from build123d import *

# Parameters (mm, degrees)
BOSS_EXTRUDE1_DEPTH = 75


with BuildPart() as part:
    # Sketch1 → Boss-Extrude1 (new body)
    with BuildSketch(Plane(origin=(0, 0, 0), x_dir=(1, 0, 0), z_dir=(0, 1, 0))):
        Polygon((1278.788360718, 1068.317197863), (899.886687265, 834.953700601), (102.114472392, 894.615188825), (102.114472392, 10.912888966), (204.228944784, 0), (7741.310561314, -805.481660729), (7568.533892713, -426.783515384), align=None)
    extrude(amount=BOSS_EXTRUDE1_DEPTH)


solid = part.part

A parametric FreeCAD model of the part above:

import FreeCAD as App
import Part
import Sketcher
from FreeCAD import Vector
Q = App.Units.Quantity


def add_polygon(sketch, points):
    """Adds a closed chain of lines whose ends are joined by coincident constraints."""
    first, n = sketch.GeometryCount, len(points)
    for a, b in zip(points, points[1:] + points[:1]):
        sketch.addGeometry(Part.LineSegment(App.Vector(*a, 0), App.Vector(*b, 0)), False)
    for i in range(n):
        sketch.addConstraint(Sketcher.Constraint("Coincident", first + i, 2, first + (i + 1) % n, 1))

doc = App.newDocument("Part")
body = doc.addObject("PartDesign::Body", "Body")

# Sketch on XZ plane
sketch1 = body.newObject("Sketcher::SketchObject", "Sketch")
sketch1.AttachmentSupport = (doc.getObject("XZ_Plane"), [""])
sketch1.MapMode = "FlatFace"
add_polygon(sketch1, [(1278.788361, -1068.317198), (899.886687, -834.953701), (102.114472, -894.615189), (102.114472, -10.912889), (204.228945, 0), (7741.310561, 805.481661), (7568.533893, 426.783515)])  # lines 0-6
sketch1.addConstraint([
    Sketcher.Constraint("Vertical", 2),
    Sketcher.Constraint("PointOnObject", 3, 2, -1),
    Sketcher.Constraint("Parallel", 3, 4),
    Sketcher.Constraint("Distance", 0, 445.0),
    Sketcher.Constraint("Distance", 1, 800.0),
    Sketcher.Constraint("Distance", 4, 7580.0),
    Sketcher.Constraint("Distance", 6, 6465.0),
    Sketcher.Constraint("Angle", 3, Q("6.1 deg")),
    Sketcher.Constraint("Distance", 5, 416.25),
    Sketcher.Constraint("DistanceY", 2, 1, 2, 2, 883.7023),
    Sketcher.Constraint("DistanceY", 0, 2, -1, 1, 834.953701),
    Sketcher.Constraint("DistanceY", 1, 2, -1, 1, 894.615189),
    Sketcher.Constraint("DistanceX", -1, 1, 4, 2, 7741.310561),
    Sketcher.Constraint("DistanceX", -1, 1, 6, 2, 1278.788361),
])
pad1 = body.newObject("PartDesign::Pad", "Pad")
pad1.Profile = sketch1
pad1.Length = 75
pad1.Reversed = True

doc.recompute()
